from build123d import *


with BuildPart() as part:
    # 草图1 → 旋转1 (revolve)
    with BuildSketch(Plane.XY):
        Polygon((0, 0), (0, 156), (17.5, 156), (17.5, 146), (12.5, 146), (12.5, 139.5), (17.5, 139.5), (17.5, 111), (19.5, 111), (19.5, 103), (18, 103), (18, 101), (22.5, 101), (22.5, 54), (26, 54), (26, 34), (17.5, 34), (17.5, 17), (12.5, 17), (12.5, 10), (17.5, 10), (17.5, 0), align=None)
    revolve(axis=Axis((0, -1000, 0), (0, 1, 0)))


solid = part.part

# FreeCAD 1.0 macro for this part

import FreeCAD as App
import Part
import Sketcher

V = App.Vector


def add_polygon(sketch, points):
    """Adds a closed chain of lines whose ends are joined by coincident constraints."""
    first, n = sketch.GeometryCount, len(points)
    for a, b in zip(points, points[1:] + points[:1]):
        sketch.addGeometry(Part.LineSegment(App.Vector(*a, 0), App.Vector(*b, 0)), False)
    for i in range(n):
        sketch.addConstraint(Sketcher.Constraint("Coincident", first + i, 2, first + (i + 1) % n, 1))

doc = App.newDocument("Part")
params = doc.addObject("Spreadsheet::Sheet", "Params")
for row, (alias, value) in enumerate([
    ("sketch1_width", "5 mm"),
    ("sketch1_width2", "2 mm"),
    ("sketch1_height", "156 mm"),
    ("sketch1_height2", "10 mm"),
    ("sketch1_height3", "7 mm"),
    ("revolution_angle", "360 deg"),
], start=1):
    params.set(f"A{row}", alias)
    params.set(f"B{row}", "=" + value)
    params.setAlias(f"B{row}", alias)

body = doc.addObject("PartDesign::Body", "Body")

# Sketch on XY plane
sketch1 = doc.addObject("Sketcher::SketchObject", "Sketch")
body.addObject(sketch1)
sketch1.AttachmentSupport = (doc.XY_Plane, [""])
sketch1.MapMode = "FlatFace"
add_polygon(sketch1, [(0, 156), (0, 0), (17.5, 0), (17.5, 10), (12.5, 10), (12.5, 17), (17.5, 17), (17.5, 34), (26, 34), (26, 54), (22.5, 54), (22.5, 101), (18, 101), (18, 103), (19.5, 103), (19.5, 111), (17.5, 111), (17.5, 139.5), (12.5, 139.5), (12.5, 146), (17.5, 146), (17.5, 156)])  # lines 0-21
sketch1.addConstraint(Sketcher.Constraint("Vertical", 0))
sketch1.addConstraint(Sketcher.Constraint("Horizontal", 1))
sketch1.addConstraint(Sketcher.Constraint("Vertical", 2))
sketch1.addConstraint(Sketcher.Constraint("Horizontal", 3))
sketch1.addConstraint(Sketcher.Constraint("Vertical", 4))
sketch1.addConstraint(Sketcher.Constraint("Horizontal", 5))
sketch1.addConstraint(Sketcher.Constraint("Vertical", 6))
sketch1.addConstraint(Sketcher.Constraint("Horizontal", 7))
sketch1.addConstraint(Sketcher.Constraint("Vertical", 8))
sketch1.addConstraint(Sketcher.Constraint("Horizontal", 9))
sketch1.addConstraint(Sketcher.Constraint("Vertical", 10))
sketch1.addConstraint(Sketcher.Constraint("Horizontal", 11))
sketch1.addConstraint(Sketcher.Constraint("Vertical", 12))
sketch1.addConstraint(Sketcher.Constraint("Horizontal", 13))
sketch1.addConstraint(Sketcher.Constraint("Vertical", 14))
sketch1.addConstraint(Sketcher.Constraint("Horizontal", 15))
sketch1.addConstraint(Sketcher.Constraint("Vertical", 16))
sketch1.addConstraint(Sketcher.Constraint("Horizontal", 17))
sketch1.addConstraint(Sketcher.Constraint("Vertical", 18))
sketch1.addConstraint(Sketcher.Constraint("Horizontal", 19))
sketch1.addConstraint(Sketcher.Constraint("Vertical", 20))
sketch1.addConstraint(Sketcher.Constraint("Horizontal", 21))
sketch1.addConstraint(Sketcher.Constraint("Coincident", 0, 2, -1, 1))
sketch1.addConstraint(Sketcher.Constraint("Vertical", 2, 2, 5, 2))
sketch1.addConstraint(Sketcher.Constraint("Vertical", 6, 2, 15, 2))
sketch1.addConstraint(Sketcher.Constraint("Vertical", 4, 2, 17, 2))
sketch1.addConstraint(Sketcher.Constraint("Vertical", 16, 2, 19, 2))
sketch1.addConstraint(Sketcher.Constraint("Equal", 15, 12))
sketch1.addConstraint(Sketcher.Constraint("Equal", 2, 20))
sketch1.addConstraint(Sketcher.Constraint("DistanceX", 3, 2, 3, 1, 5.0))
sketch1.addConstraint(Sketcher.Constraint("DistanceX", 15, 2, 15, 1, 2.0))
sketch1.addConstraint(Sketcher.Constraint("DistanceY", 0, 2, 0, 1, 156.0))
sketch1.addConstraint(Sketcher.Constraint("DistanceY", 2, 1, 2, 2, 10.0))
sketch1.addConstraint(Sketcher.Constraint("DistanceY", 4, 1, 4, 2, 7.0))
sketch1.addConstraint(Sketcher.Constraint("DistanceY", 6, 1, 6, 2, 17.0))
sketch1.addConstraint(Sketcher.Constraint("DistanceY", 8, 1, 8, 2, 20.0))
sketch1.addConstraint(Sketcher.Constraint("DistanceY", 10, 1, 10, 2, 47.0))
sketch1.addConstraint(Sketcher.Constraint("DistanceY", 14, 1, 14, 2, 8.0))
sketch1.addConstraint(Sketcher.Constraint("DistanceX", 1, 1, 1, 2, 17.5))
sketch1.addConstraint(Sketcher.Constraint("DistanceX", 7, 1, 7, 2, 8.5))
sketch1.addConstraint(Sketcher.Constraint("DistanceX", 9, 2, 9, 1, 3.5))
sketch1.addConstraint(Sketcher.Constraint("DistanceX", 11, 2, 11, 1, 4.5))
sketch1.addConstraint(Sketcher.Constraint("DistanceY", 16, 1, 16, 2, 28.5))
sketch1.setExpression("Constraints[51]", "Params.sketch1_width")
sketch1.setExpression("Constraints[52]", "Params.sketch1_width2")
sketch1.setExpression("Constraints[53]", "Params.sketch1_height")
sketch1.setExpression("Constraints[54]", "Params.sketch1_height2")
sketch1.setExpression("Constraints[55]", "Params.sketch1_height3")
revolution = doc.addObject("PartDesign::Revolution", "Revolution")
body.addObject(revolution)
revolution.Profile = sketch1
revolution.ReferenceAxis = (sketch1, ["V_Axis"])
revolution.setExpression("Angle", "Params.revolution_angle")

doc.recompute()
